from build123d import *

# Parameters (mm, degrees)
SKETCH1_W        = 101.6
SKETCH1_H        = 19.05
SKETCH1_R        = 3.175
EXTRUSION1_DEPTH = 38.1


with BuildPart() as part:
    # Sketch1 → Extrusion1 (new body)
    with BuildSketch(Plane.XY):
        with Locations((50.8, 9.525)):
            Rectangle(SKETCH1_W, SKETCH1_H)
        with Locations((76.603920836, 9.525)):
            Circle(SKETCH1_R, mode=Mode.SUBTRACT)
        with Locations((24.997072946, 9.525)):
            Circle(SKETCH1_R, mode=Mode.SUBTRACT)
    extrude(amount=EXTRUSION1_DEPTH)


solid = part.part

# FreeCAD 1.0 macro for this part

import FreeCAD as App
import Part
import Sketcher
Q = App.Units.Quantity

doc = App.newDocument("Part")
body = doc.addObject("PartDesign::Body", "Body")

sketch1 = body.newObject("Sketcher::SketchObject", "Sketch")
sketch1.AttachmentSupport = (doc.getObject("XY_Plane"), [""])
sketch1.MapMode = "FlatFace"
sketch1.addGeometry(Part.LineSegment(App.Vector(0, 19.05, 0), App.Vector(0, 0, 0)), False)
sketch1.addGeometry(Part.LineSegment(App.Vector(0, 0, 0), App.Vector(101.6, 0, 0)), False)
sketch1.addGeometry(Part.LineSegment(App.Vector(101.6, 0, 0), App.Vector(101.6, 19.05, 0)), False)
sketch1.addGeometry(Part.LineSegment(App.Vector(101.6, 19.05, 0), App.Vector(0, 19.05, 0)), False)
sketch1.addGeometry(Part.Circle(App.Vector(24.997073, 9.525, 0), App.Vector(0, 0, 1), 3.175), False)
sketch1.addGeometry(Part.Circle(App.Vector(76.603921, 9.525, 0), App.Vector(0, 0, 1), 3.175), False)
sketch1.addConstraint(Sketcher.Constraint("Coincident", 0, 2, 1, 1))
sketch1.addConstraint(Sketcher.Constraint("Coincident", 1, 2, 2, 1))
sketch1.addConstraint(Sketcher.Constraint("Coincident", 2, 2, 3, 1))
sketch1.addConstraint(Sketcher.Constraint("Coincident", 3, 2, 0, 1))
sketch1.addConstraint(Sketcher.Constraint("Vertical", 0))
sketch1.addConstraint(Sketcher.Constraint("Horizontal", 1))
sketch1.addConstraint(Sketcher.Constraint("Vertical", 2))
sketch1.addConstraint(Sketcher.Constraint("Horizontal", 3))
sketch1.addConstraint(Sketcher.Constraint("Coincident", 0, 2, -1, 1))
sketch1.addConstraint(Sketcher.Constraint("Equal", 4, 5))
sketch1.addConstraint(Sketcher.Constraint("Horizontal", 4, 3, 5, 3))
sketch1.addConstraint(Sketcher.Constraint("Diameter", 4, Q("0.25 in")))
sketch1.addConstraint(Sketcher.Constraint("DistanceX", 1, 1, 1, 2, Q("4 in")))
sketch1.addConstraint(Sketcher.Constraint("DistanceY", 0, 2, 0, 1, Q("0.75 in")))
sketch1.addConstraint(Sketcher.Constraint("DistanceY", -1, 1, 4, 3, Q("0.375 in")))
sketch1.addConstraint(Sketcher.Constraint("DistanceX", -1, 1, 5, 3, 76.603921))
sketch1.addConstraint(Sketcher.Constraint("DistanceX", -1, 1, 4, 3, 24.997073))
pad1 = body.newObject("PartDesign::Pad", "Pad")
pad1.Profile = sketch1
pad1.Length = Q("1.5 in")

doc.recompute()
